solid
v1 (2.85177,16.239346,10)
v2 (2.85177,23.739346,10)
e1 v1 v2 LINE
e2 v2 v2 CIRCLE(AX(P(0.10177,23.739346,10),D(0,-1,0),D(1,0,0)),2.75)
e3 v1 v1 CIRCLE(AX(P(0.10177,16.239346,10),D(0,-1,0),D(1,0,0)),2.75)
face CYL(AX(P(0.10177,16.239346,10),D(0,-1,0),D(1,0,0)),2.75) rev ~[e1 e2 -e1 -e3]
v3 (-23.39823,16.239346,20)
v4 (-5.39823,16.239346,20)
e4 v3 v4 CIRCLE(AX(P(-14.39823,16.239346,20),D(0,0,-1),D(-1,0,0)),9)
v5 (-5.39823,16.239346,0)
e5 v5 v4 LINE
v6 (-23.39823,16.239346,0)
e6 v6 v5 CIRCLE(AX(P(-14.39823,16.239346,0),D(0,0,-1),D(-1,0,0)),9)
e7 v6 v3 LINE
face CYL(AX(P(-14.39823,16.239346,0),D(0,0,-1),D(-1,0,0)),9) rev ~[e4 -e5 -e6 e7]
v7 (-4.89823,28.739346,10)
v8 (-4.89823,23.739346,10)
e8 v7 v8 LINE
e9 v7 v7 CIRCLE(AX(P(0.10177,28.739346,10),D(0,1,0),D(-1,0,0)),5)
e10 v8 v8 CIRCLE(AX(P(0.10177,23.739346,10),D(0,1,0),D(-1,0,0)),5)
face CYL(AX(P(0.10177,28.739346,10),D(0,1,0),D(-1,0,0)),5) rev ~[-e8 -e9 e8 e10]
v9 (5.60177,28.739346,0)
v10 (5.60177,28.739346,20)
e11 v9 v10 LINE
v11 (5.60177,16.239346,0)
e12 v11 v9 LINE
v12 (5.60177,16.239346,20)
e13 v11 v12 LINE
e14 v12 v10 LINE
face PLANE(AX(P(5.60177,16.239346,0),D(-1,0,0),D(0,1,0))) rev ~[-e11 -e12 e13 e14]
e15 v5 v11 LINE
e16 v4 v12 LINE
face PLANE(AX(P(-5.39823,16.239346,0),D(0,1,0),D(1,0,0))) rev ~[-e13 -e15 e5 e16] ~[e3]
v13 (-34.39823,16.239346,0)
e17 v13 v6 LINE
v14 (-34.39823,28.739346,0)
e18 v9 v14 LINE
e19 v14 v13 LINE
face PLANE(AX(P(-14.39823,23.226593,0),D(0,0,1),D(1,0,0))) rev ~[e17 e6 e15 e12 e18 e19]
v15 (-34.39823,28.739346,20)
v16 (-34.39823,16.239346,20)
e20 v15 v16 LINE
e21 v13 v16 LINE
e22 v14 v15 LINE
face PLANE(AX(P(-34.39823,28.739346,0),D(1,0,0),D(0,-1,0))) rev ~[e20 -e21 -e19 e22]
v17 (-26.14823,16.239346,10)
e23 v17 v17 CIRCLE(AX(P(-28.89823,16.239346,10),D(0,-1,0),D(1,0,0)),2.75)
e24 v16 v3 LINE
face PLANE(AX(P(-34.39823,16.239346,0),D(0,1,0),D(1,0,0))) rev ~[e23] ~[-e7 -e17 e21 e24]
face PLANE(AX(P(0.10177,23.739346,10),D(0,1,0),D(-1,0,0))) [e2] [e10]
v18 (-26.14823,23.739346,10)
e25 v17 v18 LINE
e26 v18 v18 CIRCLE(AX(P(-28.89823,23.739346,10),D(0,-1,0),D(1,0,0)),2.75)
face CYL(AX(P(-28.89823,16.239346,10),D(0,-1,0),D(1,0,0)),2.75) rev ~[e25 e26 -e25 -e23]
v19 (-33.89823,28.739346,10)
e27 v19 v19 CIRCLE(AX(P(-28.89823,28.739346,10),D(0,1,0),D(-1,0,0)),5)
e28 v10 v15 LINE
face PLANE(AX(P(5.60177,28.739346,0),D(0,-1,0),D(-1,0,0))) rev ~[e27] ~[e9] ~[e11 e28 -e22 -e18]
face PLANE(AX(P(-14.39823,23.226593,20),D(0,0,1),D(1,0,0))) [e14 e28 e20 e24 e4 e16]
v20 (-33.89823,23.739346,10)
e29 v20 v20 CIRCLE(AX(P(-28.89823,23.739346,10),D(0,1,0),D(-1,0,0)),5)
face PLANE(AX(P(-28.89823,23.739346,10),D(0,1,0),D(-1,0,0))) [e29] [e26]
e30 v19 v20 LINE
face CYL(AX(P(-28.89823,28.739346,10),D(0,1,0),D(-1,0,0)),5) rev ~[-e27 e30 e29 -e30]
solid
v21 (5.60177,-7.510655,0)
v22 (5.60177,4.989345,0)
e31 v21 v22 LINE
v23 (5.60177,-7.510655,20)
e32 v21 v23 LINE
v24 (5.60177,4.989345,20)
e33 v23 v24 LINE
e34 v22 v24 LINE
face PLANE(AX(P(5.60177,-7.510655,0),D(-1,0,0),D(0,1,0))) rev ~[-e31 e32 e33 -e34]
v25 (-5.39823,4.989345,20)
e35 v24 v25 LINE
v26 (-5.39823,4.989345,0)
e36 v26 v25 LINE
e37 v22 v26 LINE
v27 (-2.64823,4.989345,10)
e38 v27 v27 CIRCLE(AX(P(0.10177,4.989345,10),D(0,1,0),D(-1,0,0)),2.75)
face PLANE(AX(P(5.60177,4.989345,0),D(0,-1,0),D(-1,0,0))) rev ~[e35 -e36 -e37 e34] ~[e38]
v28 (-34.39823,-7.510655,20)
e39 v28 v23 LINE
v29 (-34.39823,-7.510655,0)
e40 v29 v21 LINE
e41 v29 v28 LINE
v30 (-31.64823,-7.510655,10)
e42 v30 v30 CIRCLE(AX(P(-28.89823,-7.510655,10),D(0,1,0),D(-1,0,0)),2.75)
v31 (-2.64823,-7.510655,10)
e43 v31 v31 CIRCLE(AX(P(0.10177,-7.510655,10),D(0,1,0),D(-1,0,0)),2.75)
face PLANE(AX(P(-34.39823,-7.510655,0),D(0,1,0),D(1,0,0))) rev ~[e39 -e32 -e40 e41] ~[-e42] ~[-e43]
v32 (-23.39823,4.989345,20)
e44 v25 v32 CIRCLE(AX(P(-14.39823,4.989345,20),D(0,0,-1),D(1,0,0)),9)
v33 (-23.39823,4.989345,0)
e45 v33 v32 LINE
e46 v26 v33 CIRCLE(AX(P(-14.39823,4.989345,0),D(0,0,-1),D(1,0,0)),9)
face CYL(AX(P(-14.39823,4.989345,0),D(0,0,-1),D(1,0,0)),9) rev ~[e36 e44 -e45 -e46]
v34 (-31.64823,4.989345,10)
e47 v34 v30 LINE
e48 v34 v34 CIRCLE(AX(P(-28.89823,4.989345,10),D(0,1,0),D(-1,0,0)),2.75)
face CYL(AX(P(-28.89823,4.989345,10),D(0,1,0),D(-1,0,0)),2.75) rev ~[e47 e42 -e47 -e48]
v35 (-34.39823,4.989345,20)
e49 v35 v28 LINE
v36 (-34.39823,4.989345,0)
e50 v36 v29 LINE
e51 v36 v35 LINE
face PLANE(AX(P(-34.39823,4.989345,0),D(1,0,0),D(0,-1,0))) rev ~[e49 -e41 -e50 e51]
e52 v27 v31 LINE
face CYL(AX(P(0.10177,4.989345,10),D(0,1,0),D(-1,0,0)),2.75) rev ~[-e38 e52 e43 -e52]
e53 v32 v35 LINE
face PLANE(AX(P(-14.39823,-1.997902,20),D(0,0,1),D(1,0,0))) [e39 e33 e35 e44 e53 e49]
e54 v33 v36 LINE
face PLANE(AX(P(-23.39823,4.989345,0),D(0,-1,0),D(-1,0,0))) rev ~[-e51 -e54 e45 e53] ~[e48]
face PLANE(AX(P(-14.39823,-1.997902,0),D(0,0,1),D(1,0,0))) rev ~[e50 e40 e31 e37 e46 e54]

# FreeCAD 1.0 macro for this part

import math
import FreeCAD as App
import Part
import Sketcher
from FreeCAD import Vector

doc = App.newDocument("Part")
body = doc.addObject("PartDesign::Body", "Body")
body.AllowCompound = True

# Sketch on XY plane
sketch1 = body.newObject("Sketcher::SketchObject", "Sketch")
sketch1.AttachmentSupport = (doc.getObject("XY_Plane"), [""])
sketch1.MapMode = "FlatFace"
sketch1.addGeometry([
    Part.LineSegment(Vector(-34.39823, 28.739346, 0), Vector(-34.39823, 16.239346, 0)),  # 0
    Part.LineSegment(Vector(-34.39823, 16.239346, 0), Vector(-23.39823, 16.239346, 0)),  # 1
    Part.ArcOfCircle(Part.Circle(Vector(-14.39823, 16.239346, 0), Vector(0, 0, 1), 9), math.radians(0), math.radians(180)),  # 2
    Part.LineSegment(Vector(-5.39823, 16.239346, 0), Vector(5.60177, 16.239346, 0)),  # 3
    Part.LineSegment(Vector(5.60177, 16.239346, 0), Vector(5.60177, 28.739346, 0)),  # 4
    Part.LineSegment(Vector(5.60177, 28.739346, 0), Vector(-34.39823, 28.739346, 0)),  # 5
    Part.LineSegment(Vector(-23.39823, 4.989345, 0), Vector(-34.39823, 4.989345, 0)),  # 6
    Part.LineSegment(Vector(-34.39823, 4.989345, 0), Vector(-34.39823, -7.510655, 0)),  # 7
    Part.LineSegment(Vector(-34.39823, -7.510655, 0), Vector(5.60177, -7.510655, 0)),  # 8
    Part.LineSegment(Vector(5.60177, -7.510655, 0), Vector(5.60177, 4.989345, 0)),  # 9
    Part.LineSegment(Vector(5.60177, 4.989345, 0), Vector(-5.39823, 4.989345, 0)),  # 10
    Part.ArcOfCircle(Part.Circle(Vector(-14.39823, 4.989345, 0), Vector(0, 0, 1), 9), math.radians(180), math.radians(360)),  # 11
], False)
sketch1.addConstraint([
    Sketcher.Constraint("Coincident", 0, 2, 1, 1),
    Sketcher.Constraint("Coincident", 1, 2, 2, 2),
    Sketcher.Constraint("Coincident", 2, 1, 3, 1),
    Sketcher.Constraint("Coincident", 3, 2, 4, 1),
    Sketcher.Constraint("Coincident", 4, 2, 5, 1),
    Sketcher.Constraint("Coincident", 5, 2, 0, 1),
    Sketcher.Constraint("Coincident", 6, 2, 7, 1),
    Sketcher.Constraint("Coincident", 7, 2, 8, 1),
    Sketcher.Constraint("Coincident", 8, 2, 9, 1),
    Sketcher.Constraint("Coincident", 9, 2, 10, 1),
    Sketcher.Constraint("Coincident", 10, 2, 11, 2),
    Sketcher.Constraint("Coincident", 11, 1, 6, 1),
    Sketcher.Constraint("Vertical", 0),
    Sketcher.Constraint("Horizontal", 1),
    Sketcher.Constraint("Horizontal", 3),
    Sketcher.Constraint("Vertical", 4),
    Sketcher.Constraint("Horizontal", 5),
    Sketcher.Constraint("Horizontal", 6),
    Sketcher.Constraint("Vertical", 7),
    Sketcher.Constraint("Horizontal", 8),
    Sketcher.Constraint("Vertical", 9),
    Sketcher.Constraint("Horizontal", 10),
    Sketcher.Constraint("Equal", 2, 11),
    Sketcher.Constraint("Horizontal", 2, 3, 0, 2),
    Sketcher.Constraint("Horizontal", 1, 2, 2, 1),
    Sketcher.Constraint("Horizontal", 11, 3, 6, 2),
    Sketcher.Constraint("Horizontal", 6, 2, 9, 2),
    Sketcher.Constraint("Vertical", 2, 3, 11, 3),
    Sketcher.Constraint("Vertical", 5, 2, 6, 2),
    Sketcher.Constraint("Vertical", 4, 2, 8, 2),
    Sketcher.Constraint("Equal", 1, 3),
    Sketcher.Constraint("Equal", 4, 7),
    Sketcher.Constraint("Radius", 2, 9.0),
    Sketcher.Constraint("DistanceX", 1, 1, 1, 2, 11.0),
    Sketcher.Constraint("DistanceY", 0, 2, 0, 1, 12.5),
    Sketcher.Constraint("DistanceY", 11, 3, 2, 3, 11.250001),
    Sketcher.Constraint("DistanceX", 2, 3, -1, 1, 14.39823),
    Sketcher.Constraint("DistanceY", -1, 1, 2, 3, 16.239346),
])
pad1 = body.newObject("PartDesign::Pad", "Pad")
pad1.Profile = sketch1
pad1.Length = 20

# Sketch on XZ plane
sketch2 = body.newObject("Sketcher::SketchObject", "Sketch001")
sketch2.AttachmentSupport = (doc.getObject("XZ_Plane"), [""])
sketch2.MapMode = "FlatFace"
sketch2.AttachmentOffset = App.Placement(Vector(0, 0, -4.989345), App.Rotation())
sketch2.addGeometry([
    Part.Circle(Vector(0.10177, 10, 0), Vector(0, 0, 1), 2.75),
    Part.Circle(Vector(-28.89823, 10, 0), Vector(0, 0, 1), 2.75),
], False)
sketch2.addConstraint([
    Sketcher.Constraint("Equal", 0, 1),
    Sketcher.Constraint("Horizontal", 0, 3, 1, 3),
    Sketcher.Constraint("Diameter", 0, 5.5),
    Sketcher.Constraint("DistanceY", -1, 1, 0, 3, 10.0),
    Sketcher.Constraint("DistanceX", 1, 3, 0, 3, 29.0),
    Sketcher.Constraint("DistanceX", -1, 1, 0, 3, 0.10177),
])
pocket1 = body.newObject("PartDesign::Pocket", "Pocket")
pocket1.Profile = sketch2
pocket1.Length = 25
pocket1.Reversed = True

# Sketch on XZ plane
sketch3 = body.newObject("Sketcher::SketchObject", "Sketch002")
sketch3.AttachmentSupport = (doc.getObject("XZ_Plane"), [""])
sketch3.MapMode = "FlatFace"
sketch3.AttachmentOffset = App.Placement(Vector(0, 0, -16.239346), App.Rotation())
sketch3.addGeometry([
    Part.Circle(Vector(-28.89823, 10, 0), Vector(0, 0, 1), 2.75),
    Part.Circle(Vector(0.10177, 10, 0), Vector(0, 0, 1), 2.75),
], False)
sketch3.addConstraint([
    Sketcher.Constraint("Equal", 0, 1),
    Sketcher.Constraint("Horizontal", 0, 3, 1, 3),
    Sketcher.Constraint("Diameter", 0, 5.5),
    Sketcher.Constraint("DistanceY", -1, 1, 0, 3, 10.0),
    Sketcher.Constraint("DistanceX", 0, 3, 1, 3, 29.0),
    Sketcher.Constraint("DistanceX", 0, 3, -1, 1, 28.89823),
])
pocket2 = body.newObject("PartDesign::Pocket", "Pocket001")
pocket2.Profile = sketch3
pocket2.Length = 12.5

# Sketch on XZ plane
sketch4 = body.newObject("Sketcher::SketchObject", "Sketch003")
sketch4.AttachmentSupport = (doc.getObject("XZ_Plane"), [""])
sketch4.MapMode = "FlatFace"
sketch4.AttachmentOffset = App.Placement(Vector(0, 0, -28.739346), App.Rotation())
sketch4.addGeometry([
    Part.Circle(Vector(0.10177, 10, 0), Vector(0, 0, 1), 5),
    Part.Circle(Vector(-28.89823, 10, 0), Vector(0, 0, 1), 5),
], False)
sketch4.addConstraint([
    Sketcher.Constraint("Equal", 0, 1),
    Sketcher.Constraint("Horizontal", 0, 3, 1, 3),
    Sketcher.Constraint("Diameter", 0, 10.0),
    Sketcher.Constraint("DistanceY", -1, 1, 0, 3, 10.0),
    Sketcher.Constraint("DistanceX", 1, 3, 0, 3, 29.0),
    Sketcher.Constraint("DistanceX", -1, 1, 0, 3, 0.10177),
])
pocket3 = body.newObject("PartDesign::Pocket", "Pocket002")
pocket3.Profile = sketch4
pocket3.Length = 5
pocket3.Reversed = True

doc.recompute()
